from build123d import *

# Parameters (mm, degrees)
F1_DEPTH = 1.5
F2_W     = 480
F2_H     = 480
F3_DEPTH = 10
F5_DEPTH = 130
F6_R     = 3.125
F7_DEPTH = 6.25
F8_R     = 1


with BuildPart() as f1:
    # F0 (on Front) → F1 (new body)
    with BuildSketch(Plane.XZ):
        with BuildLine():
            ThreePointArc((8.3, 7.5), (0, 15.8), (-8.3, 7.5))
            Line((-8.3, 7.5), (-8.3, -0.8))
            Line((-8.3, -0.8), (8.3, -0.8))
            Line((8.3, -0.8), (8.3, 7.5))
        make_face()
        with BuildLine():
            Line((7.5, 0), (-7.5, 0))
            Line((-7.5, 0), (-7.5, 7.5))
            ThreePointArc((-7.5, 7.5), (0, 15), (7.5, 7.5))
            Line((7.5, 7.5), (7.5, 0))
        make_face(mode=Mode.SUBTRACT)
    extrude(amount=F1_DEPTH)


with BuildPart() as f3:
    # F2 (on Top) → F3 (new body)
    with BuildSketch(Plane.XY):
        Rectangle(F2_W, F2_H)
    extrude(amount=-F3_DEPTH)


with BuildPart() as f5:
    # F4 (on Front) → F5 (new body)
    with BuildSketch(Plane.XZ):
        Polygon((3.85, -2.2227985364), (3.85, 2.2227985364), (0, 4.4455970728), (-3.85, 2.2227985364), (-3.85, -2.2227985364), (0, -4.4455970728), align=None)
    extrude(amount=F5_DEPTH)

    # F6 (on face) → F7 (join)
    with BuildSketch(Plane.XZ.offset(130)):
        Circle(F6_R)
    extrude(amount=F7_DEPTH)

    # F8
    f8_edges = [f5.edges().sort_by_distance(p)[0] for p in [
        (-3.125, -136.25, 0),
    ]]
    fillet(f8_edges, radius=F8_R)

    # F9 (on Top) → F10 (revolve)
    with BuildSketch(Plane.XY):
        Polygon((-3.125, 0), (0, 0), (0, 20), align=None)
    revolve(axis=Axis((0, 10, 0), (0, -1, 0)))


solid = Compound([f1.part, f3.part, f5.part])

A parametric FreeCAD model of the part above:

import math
import FreeCAD as App
import Part
import Sketcher

V = App.Vector
Q = App.Units.Quantity


def edges_at(feature, points):
    """Names of the edges that pass closest to the given points."""
    edges = feature.Shape.Edges
    near = lambda p: min(range(len(edges)), key=lambda i: edges[i].distToShape(Part.Vertex(*p))[0])
    return sorted({f"Edge{near(p) + 1}" for p in points})


def add_polygon(sketch, points):
    """Adds a closed chain of lines whose ends are joined by coincident constraints."""
    first, n = sketch.GeometryCount, len(points)
    for a, b in zip(points, points[1:] + points[:1]):
        sketch.addGeometry(Part.LineSegment(App.Vector(*a, 0), App.Vector(*b, 0)), False)
    for i in range(n):
        sketch.addConstraint(Sketcher.Constraint("Coincident", first + i, 2, first + (i + 1) % n, 1))

doc = App.newDocument("Part")
body = doc.addObject("PartDesign::Body", "Body")

sketch1 = body.newObject("Sketcher::SketchObject", "Sketch")
sketch1.AttachmentSupport = (doc.getObject("XZ_Plane"), [""])
sketch1.MapMode = "FlatFace"
sketch1.addGeometry([
    Part.ArcOfCircle(Part.Circle(V(0, 7.5, 0), V(0, 0, 1), 8.3), math.radians(0), math.radians(180)),
    Part.LineSegment(V(-8.3, 7.5, 0), V(-8.3, -0.8, 0)),
    Part.LineSegment(V(-8.3, -0.8, 0), V(8.3, -0.8, 0)),
    Part.LineSegment(V(8.3, -0.8, 0), V(8.3, 7.5, 0)),
    Part.LineSegment(V(7.5, 7.5, 0), V(7.5, 0, 0)),
    Part.LineSegment(V(7.5, 0, 0), V(-7.5, 0, 0)),
    Part.LineSegment(V(-7.5, 0, 0), V(-7.5, 7.5, 0)),
    Part.ArcOfCircle(Part.Circle(V(0, 7.5, 0), V(0, 0, 1), 7.5), math.radians(0), math.radians(180)),
], False)
sketch1.addConstraint([
    Sketcher.Constraint("Tangent", 0, 2, 1, 1),
    Sketcher.Constraint("Coincident", 1, 2, 2, 1),
    Sketcher.Constraint("Coincident", 2, 2, 3, 1),
    Sketcher.Constraint("Tangent", 3, 2, 0, 1),
    Sketcher.Constraint("Coincident", 4, 2, 5, 1),
    Sketcher.Constraint("Coincident", 5, 2, 6, 1),
    Sketcher.Constraint("Tangent", 6, 2, 7, 2),
    Sketcher.Constraint("Tangent", 7, 1, 4, 1),
    Sketcher.Constraint("Vertical", 1),
    Sketcher.Constraint("Horizontal", 2),
    Sketcher.Constraint("Vertical", 3),
    Sketcher.Constraint("Vertical", 4),
    Sketcher.Constraint("Horizontal", 5),
    Sketcher.Constraint("Vertical", 6),
    Sketcher.Constraint("Coincident", 7, 3, 0, 3),
    Sketcher.Constraint("Symmetric", 4, 2, 5, 2, -1, 1),
    Sketcher.Constraint("Radius", 0, 8.3),
    Sketcher.Constraint("Radius", 7, 7.5),
    Sketcher.Constraint("DistanceY", 1, 2, 1, 1, 8.3),
    Sketcher.Constraint("DistanceY", 4, 2, 4, 1, 7.5),
])
pad1 = body.newObject("PartDesign::Pad", "Pad")
pad1.Profile = sketch1
pad1.Length = 1.5
body2 = doc.addObject("PartDesign::Body", "Body001")

sketch2 = body2.newObject("Sketcher::SketchObject", "Sketch001")
sketch2.AttachmentSupport = (doc.getObject("XY_Plane001"), [""])
sketch2.MapMode = "FlatFace"
add_polygon(sketch2, [(-240, 240), (-240, -240), (240, -240), (240, 240)])
sketch2.addConstraint([
    Sketcher.Constraint("Vertical", 0),
    Sketcher.Constraint("Horizontal", 1),
    Sketcher.Constraint("Vertical", 2),
    Sketcher.Constraint("Horizontal", 3),
    Sketcher.Constraint("Symmetric", 0, 2, 2, 2, -1, 1),
    Sketcher.Constraint("Equal", 3, 0),
    Sketcher.Constraint("DistanceX", 1, 1, 1, 2, 480.0),
])
pad2 = body2.newObject("PartDesign::Pad", "Pad001")
pad2.Profile = sketch2
pad2.Length = 10
pad2.Reversed = True
body3 = doc.addObject("PartDesign::Body", "Body002")

sketch3 = body3.newObject("Sketcher::SketchObject", "Sketch002")
sketch3.AttachmentSupport = (doc.getObject("XZ_Plane002"), [""])
sketch3.MapMode = "FlatFace"
add_polygon(sketch3, [(3.85, -2.222799), (3.85, 2.222799), (0, 4.445597), (-3.85, 2.222799), (-3.85, -2.222799), (0, -4.445597)])
sketch3.addConstraint([
    Sketcher.Constraint("Vertical", 0),
    Sketcher.Constraint("Vertical", 3),
    Sketcher.Constraint("Symmetric", 0, 2, 3, 2, -1, 1),
    Sketcher.Constraint("Symmetric", 1, 2, 4, 2, -1, 1),
    Sketcher.Constraint("PointOnObject", 1, 2, -2),
    Sketcher.Constraint("Parallel", 2, 5),
    Sketcher.Constraint("Horizontal", 0, 2, 2, 2),
    Sketcher.Constraint("Angle", 1, Q("150 deg")),
    Sketcher.Constraint("DistanceX", 2, 2, 0, 2, 7.7),
    Sketcher.Constraint("DistanceY", -1, 1, 0, 2, 2.222799),
])
pad3 = body3.newObject("PartDesign::Pad", "Pad002")
pad3.Profile = sketch3
pad3.Length = 130

sketch4 = body3.newObject("Sketcher::SketchObject", "Sketch003")
sketch4.AttachmentSupport = (doc.getObject("XZ_Plane002"), [""])
sketch4.MapMode = "FlatFace"
sketch4.AttachmentOffset = App.Placement(V(0, 0, 130), App.Rotation())
sketch4.addGeometry(Part.Circle(V(0, 0, 0), V(0, 0, 1), 3.125), False)
sketch4.addConstraint([
    Sketcher.Constraint("Coincident", 0, 3, -1, 1),
    Sketcher.Constraint("Diameter", 0, 6.25),
])
pad4 = body3.newObject("PartDesign::Pad", "Pad003")
pad4.Profile = sketch4
pad4.Length = 6.25
doc.recompute()

fillet = body3.newObject("PartDesign::Fillet", "Fillet")
fillet.Base = (pad4, edges_at(pad4, [(-3.125, -136.25, 0)]))
fillet.Radius = 1

sketch5 = body3.newObject("Sketcher::SketchObject", "Sketch004")
sketch5.AttachmentSupport = (doc.getObject("XY_Plane002"), [""])
sketch5.MapMode = "FlatFace"
add_polygon(sketch5, [(-3.125, 0), (0, 0), (0, 20)])
sketch5.addConstraint([
    Sketcher.Constraint("Horizontal", 0),
    Sketcher.Constraint("Vertical", 1),
    Sketcher.Constraint("Coincident", 0, 2, -1, 1),
    Sketcher.Constraint("DistanceY", 1, 1, 1, 2, 20.0),
    Sketcher.Constraint("DistanceX", 0, 1, 0, 2, 3.125),
])
revolution = body3.newObject("PartDesign::Revolution", "Revolution")
revolution.Profile = sketch5
revolution.ReferenceAxis = (sketch5, ["V_Axis"])
revolution.Angle = 360

doc.recompute()
